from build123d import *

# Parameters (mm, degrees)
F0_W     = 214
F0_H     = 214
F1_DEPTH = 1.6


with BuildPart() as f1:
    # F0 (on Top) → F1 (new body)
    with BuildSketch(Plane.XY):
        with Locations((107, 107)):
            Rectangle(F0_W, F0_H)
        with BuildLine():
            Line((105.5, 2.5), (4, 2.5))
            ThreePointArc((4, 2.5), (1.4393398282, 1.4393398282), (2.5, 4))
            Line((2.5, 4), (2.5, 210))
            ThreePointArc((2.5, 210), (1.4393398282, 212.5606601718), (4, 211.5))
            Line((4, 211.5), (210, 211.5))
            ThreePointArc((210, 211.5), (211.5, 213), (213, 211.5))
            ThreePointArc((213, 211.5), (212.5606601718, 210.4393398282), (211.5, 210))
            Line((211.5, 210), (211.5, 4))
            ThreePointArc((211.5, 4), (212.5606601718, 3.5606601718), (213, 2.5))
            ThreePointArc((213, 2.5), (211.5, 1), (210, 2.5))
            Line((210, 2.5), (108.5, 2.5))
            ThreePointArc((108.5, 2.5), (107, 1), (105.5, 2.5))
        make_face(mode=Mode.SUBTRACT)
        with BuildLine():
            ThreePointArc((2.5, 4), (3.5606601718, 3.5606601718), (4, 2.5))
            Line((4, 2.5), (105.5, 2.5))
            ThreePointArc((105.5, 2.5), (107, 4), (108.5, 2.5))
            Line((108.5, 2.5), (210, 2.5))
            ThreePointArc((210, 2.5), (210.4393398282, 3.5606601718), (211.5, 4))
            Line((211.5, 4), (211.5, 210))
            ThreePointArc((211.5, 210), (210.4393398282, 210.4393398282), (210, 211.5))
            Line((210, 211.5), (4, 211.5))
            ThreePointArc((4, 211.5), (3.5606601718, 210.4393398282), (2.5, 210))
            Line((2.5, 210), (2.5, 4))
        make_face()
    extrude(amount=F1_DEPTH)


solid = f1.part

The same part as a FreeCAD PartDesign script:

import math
import FreeCAD as App
import Part
import Sketcher
from FreeCAD import Vector
Q = App.Units.Quantity


def add_polygon(sketch, points):
    """Adds a closed chain of lines whose ends are joined by coincident constraints."""
    first, n = sketch.GeometryCount, len(points)
    for a, b in zip(points, points[1:] + points[:1]):
        sketch.addGeometry(Part.LineSegment(App.Vector(*a, 0), App.Vector(*b, 0)), False)
    for i in range(n):
        sketch.addConstraint(Sketcher.Constraint("Coincident", first + i, 2, first + (i + 1) % n, 1))

doc = App.newDocument("Part")
body = doc.addObject("PartDesign::Body", "Body")

# Sketch on XY plane
sketch1 = body.newObject("Sketcher::SketchObject", "Sketch")
sketch1.AttachmentSupport = (doc.getObject("XY_Plane"), [""])
sketch1.MapMode = "FlatFace"
add_polygon(sketch1, [(0, 214), (0, 0), (214, 0), (214, 214)])  # lines 0-3
sketch1.addGeometry(Part.Circle(Vector(107, 2.5, 0), Vector(0, 0, 1), 1.5), False)  # 4
sketch1.addGeometry(Part.ArcOfCircle(Part.Circle(Vector(211.5, 2.5, 0), Vector(0, 0, 1), 1.5), math.radians(180), math.radians(360)), False)  # 5
sketch1.addGeometry(Part.ArcOfCircle(Part.Circle(Vector(211.5, 2.5, 0), Vector(0, 0, 1), 1.5), math.radians(90), math.radians(180)), False)  # 6
sketch1.addGeometry(Part.ArcOfCircle(Part.Circle(Vector(211.5, 2.5, 0), Vector(0, 0, 1), 1.5), math.radians(0), math.radians(90)), False)  # 7
sketch1.addGeometry(Part.ArcOfCircle(Part.Circle(Vector(211.5, 211.5, 0), Vector(0, 0, 1), 1.5), math.radians(-90), math.radians(0)), False)  # 8
sketch1.addGeometry(Part.ArcOfCircle(Part.Circle(Vector(211.5, 211.5, 0), Vector(0, 0, 1), 1.5), math.radians(180), math.radians(270)), False)  # 9
sketch1.addGeometry(Part.ArcOfCircle(Part.Circle(Vector(211.5, 211.5, 0), Vector(0, 0, 1), 1.5), math.radians(0), math.radians(180)), False)  # 10
sketch1.addGeometry(Part.ArcOfCircle(Part.Circle(Vector(2.5, 211.5, 0), Vector(0, 0, 1), 1.5), math.radians(0), math.radians(270)), False)  # 11
sketch1.addGeometry(Part.ArcOfCircle(Part.Circle(Vector(2.5, 211.5, 0), Vector(0, 0, 1), 1.5), math.radians(-90), math.radians(0)), False)  # 12
sketch1.addGeometry(Part.ArcOfCircle(Part.Circle(Vector(2.5, 2.5, 0), Vector(0, 0, 1), 1.5), math.radians(90), math.radians(360)), False)  # 13
sketch1.addGeometry(Part.ArcOfCircle(Part.Circle(Vector(2.5, 2.5, 0), Vector(0, 0, 1), 1.5), math.radians(0), math.radians(90)), False)  # 14
sketch1.addConstraint(Sketcher.Constraint("Tangent", 5, 1, 6, 2))
sketch1.addConstraint(Sketcher.Constraint("Tangent", 6, 1, 7, 2))
sketch1.addConstraint(Sketcher.Constraint("Tangent", 7, 1, 5, 2))
sketch1.addConstraint(Sketcher.Constraint("Tangent", 8, 1, 9, 2))
sketch1.addConstraint(Sketcher.Constraint("Tangent", 9, 1, 10, 2))
sketch1.addConstraint(Sketcher.Constraint("Tangent", 10, 1, 8, 2))
sketch1.addConstraint(Sketcher.Constraint("Tangent", 11, 1, 12, 2))
sketch1.addConstraint(Sketcher.Constraint("Coincident", 12, 1, 11, 2))
sketch1.addConstraint(Sketcher.Constraint("Tangent", 13, 1, 14, 2))
sketch1.addConstraint(Sketcher.Constraint("Coincident", 14, 1, 13, 2))
sketch1.addConstraint(Sketcher.Constraint("Vertical", 0))
sketch1.addConstraint(Sketcher.Constraint("Horizontal", 1))
sketch1.addConstraint(Sketcher.Constraint("Vertical", 2))
sketch1.addConstraint(Sketcher.Constraint("Horizontal", 3))
sketch1.addConstraint(Sketcher.Constraint("Coincident", 0, 2, -1, 1))
sketch1.addConstraint(Sketcher.Constraint("Equal", 4, 5))
sketch1.addConstraint(Sketcher.Constraint("Equal", 7, 8))
sketch1.addConstraint(Sketcher.Constraint("Equal", 10, 11))
sketch1.addConstraint(Sketcher.Constraint("Equal", 12, 13))
sketch1.addConstraint(Sketcher.Constraint("Horizontal", 4, 3, 5, 3))
sketch1.addConstraint(Sketcher.Constraint("Horizontal", 10, 3, 11, 3))
sketch1.addConstraint(Sketcher.Constraint("Horizontal", 7, 3, 13, 3))
sketch1.addConstraint(Sketcher.Constraint("Horizontal", 14, 3, 5, 1))
sketch1.addConstraint(Sketcher.Constraint("Horizontal", 5, 1, 7, 1))
sketch1.addConstraint(Sketcher.Constraint("Horizontal", 12, 3, 9, 1))
sketch1.addConstraint(Sketcher.Constraint("Horizontal", 9, 1, 10, 1))
sketch1.addConstraint(Sketcher.Constraint("Horizontal", 10, 1, 11, 1))
sketch1.addConstraint(Sketcher.Constraint("Horizontal", 7, 1, 14, 1))
sketch1.addConstraint(Sketcher.Constraint("Vertical", 7, 3, 8, 3))
sketch1.addConstraint(Sketcher.Constraint("Vertical", 12, 3, 13, 3))
sketch1.addConstraint(Sketcher.Constraint("Vertical", 10, 3, 6, 1))
sketch1.addConstraint(Sketcher.Constraint("Vertical", 6, 1, 8, 1))
sketch1.addConstraint(Sketcher.Constraint("Vertical", 14, 3, 12, 1))
sketch1.addConstraint(Sketcher.Constraint("Vertical", 12, 1, 13, 1))
sketch1.addConstraint(Sketcher.Constraint("Equal", 3, 0))
sketch1.addConstraint(Sketcher.Constraint("Diameter", 4, Q("3 mm")))
sketch1.addConstraint(Sketcher.Constraint("DistanceX", 1, 1, 1, 2, Q("214 mm")))
sketch1.addConstraint(Sketcher.Constraint("DistanceX", -1, 1, 4, 3, Q("107 mm")))
sketch1.addConstraint(Sketcher.Constraint("DistanceX", -1, 1, 5, 1, Q("210 mm")))
sketch1.addConstraint(Sketcher.Constraint("DistanceY", -1, 1, 6, 1, Q("4 mm")))
sketch1.addConstraint(Sketcher.Constraint("DistanceY", -1, 1, 8, 1, Q("210 mm")))
sketch1.addConstraint(Sketcher.Constraint("DistanceX", -1, 1, 11, 1, Q("4 mm")))
pad1 = body.newObject("PartDesign::Pad", "Pad")
pad1.Profile = sketch1
pad1.Length = 1.6

doc.recompute()
